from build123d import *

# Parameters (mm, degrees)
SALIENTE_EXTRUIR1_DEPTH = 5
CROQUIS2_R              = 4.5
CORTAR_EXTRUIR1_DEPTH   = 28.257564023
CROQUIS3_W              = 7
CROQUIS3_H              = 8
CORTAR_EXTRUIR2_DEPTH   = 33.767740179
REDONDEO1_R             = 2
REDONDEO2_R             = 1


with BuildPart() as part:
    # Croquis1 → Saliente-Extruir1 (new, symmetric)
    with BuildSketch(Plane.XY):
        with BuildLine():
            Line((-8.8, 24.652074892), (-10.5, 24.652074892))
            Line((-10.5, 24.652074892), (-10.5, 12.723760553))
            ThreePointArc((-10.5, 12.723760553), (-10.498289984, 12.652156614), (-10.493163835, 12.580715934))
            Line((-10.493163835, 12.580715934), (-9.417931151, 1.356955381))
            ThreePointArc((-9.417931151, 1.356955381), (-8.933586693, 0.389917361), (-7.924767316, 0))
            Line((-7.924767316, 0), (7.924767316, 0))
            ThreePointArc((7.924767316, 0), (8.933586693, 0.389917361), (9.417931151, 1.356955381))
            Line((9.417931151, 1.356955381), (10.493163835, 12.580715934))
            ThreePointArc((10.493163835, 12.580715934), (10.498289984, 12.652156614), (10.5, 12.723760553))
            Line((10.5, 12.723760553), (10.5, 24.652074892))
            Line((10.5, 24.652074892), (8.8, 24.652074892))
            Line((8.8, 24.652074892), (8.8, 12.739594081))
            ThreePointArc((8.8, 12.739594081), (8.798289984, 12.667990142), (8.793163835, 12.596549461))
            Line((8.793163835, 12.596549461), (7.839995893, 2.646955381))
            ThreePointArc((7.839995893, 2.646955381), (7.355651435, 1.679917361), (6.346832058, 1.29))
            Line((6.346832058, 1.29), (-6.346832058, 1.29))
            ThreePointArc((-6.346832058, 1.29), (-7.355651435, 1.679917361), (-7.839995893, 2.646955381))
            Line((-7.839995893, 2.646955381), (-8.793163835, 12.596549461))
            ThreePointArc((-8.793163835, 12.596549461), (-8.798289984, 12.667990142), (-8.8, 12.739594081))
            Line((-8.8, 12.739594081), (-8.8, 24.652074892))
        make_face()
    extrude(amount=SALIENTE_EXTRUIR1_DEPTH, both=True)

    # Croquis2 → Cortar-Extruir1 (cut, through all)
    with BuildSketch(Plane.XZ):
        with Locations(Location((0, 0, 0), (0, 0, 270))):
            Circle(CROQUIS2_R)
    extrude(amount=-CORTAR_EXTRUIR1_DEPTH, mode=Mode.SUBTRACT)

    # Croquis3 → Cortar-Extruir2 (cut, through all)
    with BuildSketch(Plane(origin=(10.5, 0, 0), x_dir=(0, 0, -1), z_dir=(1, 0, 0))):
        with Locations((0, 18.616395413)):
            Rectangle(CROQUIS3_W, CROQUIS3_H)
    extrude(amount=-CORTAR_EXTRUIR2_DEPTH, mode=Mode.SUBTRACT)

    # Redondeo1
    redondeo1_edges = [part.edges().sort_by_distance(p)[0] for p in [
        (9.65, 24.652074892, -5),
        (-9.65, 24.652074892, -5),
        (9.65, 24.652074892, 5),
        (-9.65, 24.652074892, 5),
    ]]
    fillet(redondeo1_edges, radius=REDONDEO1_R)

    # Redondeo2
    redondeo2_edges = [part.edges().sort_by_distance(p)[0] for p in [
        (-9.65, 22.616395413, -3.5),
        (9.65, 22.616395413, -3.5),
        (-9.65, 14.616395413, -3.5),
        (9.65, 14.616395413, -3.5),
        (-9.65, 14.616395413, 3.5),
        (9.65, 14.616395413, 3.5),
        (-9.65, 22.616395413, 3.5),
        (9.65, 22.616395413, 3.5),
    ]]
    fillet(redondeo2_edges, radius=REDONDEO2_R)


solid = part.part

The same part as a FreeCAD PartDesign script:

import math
import FreeCAD as App
import Part
import Sketcher


def edges_at(feature, points):
    """Names of the edges that pass closest to the given points."""
    edges = feature.Shape.Edges
    near = lambda p: min(range(len(edges)), key=lambda i: edges[i].distToShape(Part.Vertex(*p))[0])
    return sorted({f"Edge{near(p) + 1}" for p in points})

doc = App.newDocument("Part")
body = doc.addObject("PartDesign::Body", "Body")

# Sketch on XY plane
sketch1 = body.newObject("Sketcher::SketchObject", "Sketch")
sketch1.AttachmentSupport = (doc.getObject("XY_Plane"), [""])
sketch1.MapMode = "FlatFace"
sketch1.addGeometry(Part.LineSegment(App.Vector(-8.8, 24.652075, 0), App.Vector(-10.5, 24.652075, 0)), False)
sketch1.addGeometry(Part.LineSegment(App.Vector(-10.5, 24.652075, 0), App.Vector(-10.5, 12.723761, 0)), False)
sketch1.addGeometry(Part.ArcOfCircle(Part.Circle(App.Vector(-9, 12.723761, 0), App.Vector(0, 0, 1), 1.5), math.radians(-180), math.radians(-174.527783)), False)
sketch1.addGeometry(Part.LineSegment(App.Vector(-10.493164, 12.580716, 0), App.Vector(-9.417931, 1.356955, 0)), False)
sketch1.addGeometry(Part.ArcOfCircle(Part.Circle(App.Vector(-7.924767, 1.5, 0), App.Vector(0, 0, 1), 1.5), math.radians(-174.527782), math.radians(-90)), False)
sketch1.addGeometry(Part.LineSegment(App.Vector(-7.924767, 0, 0), App.Vector(7.924767, 0, 0)), False)
sketch1.addGeometry(Part.ArcOfCircle(Part.Circle(App.Vector(7.924767, 1.5, 0), App.Vector(0, 0, 1), 1.5), math.radians(-90), math.radians(-5.472218)), False)
sketch1.addGeometry(Part.LineSegment(App.Vector(9.417931, 1.356955, 0), App.Vector(10.493164, 12.580716, 0)), False)
sketch1.addGeometry(Part.ArcOfCircle(Part.Circle(App.Vector(9, 12.723761, 0), App.Vector(0, 0, 1), 1.5), math.radians(-5.472217), math.radians(0)), False)
sketch1.addGeometry(Part.LineSegment(App.Vector(10.5, 12.723761, 0), App.Vector(10.5, 24.652075, 0)), False)
sketch1.addGeometry(Part.LineSegment(App.Vector(10.5, 24.652075, 0), App.Vector(8.8, 24.652075, 0)), False)
sketch1.addGeometry(Part.LineSegment(App.Vector(8.8, 24.652075, 0), App.Vector(8.8, 12.739594, 0)), False)
sketch1.addGeometry(Part.ArcOfCircle(Part.Circle(App.Vector(7.3, 12.739594, 0), App.Vector(0, 0, 1), 1.5), math.radians(-5.472217), math.radians(0)), False)
sketch1.addGeometry(Part.LineSegment(App.Vector(8.793164, 12.596549, 0), App.Vector(7.839996, 2.646955, 0)), False)
sketch1.addGeometry(Part.ArcOfCircle(Part.Circle(App.Vector(6.346832, 2.79, 0), App.Vector(0, 0, 1), 1.5), math.radians(-90), math.radians(-5.472218)), False)
sketch1.addGeometry(Part.LineSegment(App.Vector(6.346832, 1.29, 0), App.Vector(-6.346832, 1.29, 0)), False)
sketch1.addGeometry(Part.ArcOfCircle(Part.Circle(App.Vector(-6.346832, 2.79, 0), App.Vector(0, 0, 1), 1.5), math.radians(-174.527782), math.radians(-90)), False)
sketch1.addGeometry(Part.LineSegment(App.Vector(-7.839996, 2.646955, 0), App.Vector(-8.793164, 12.596549, 0)), False)
sketch1.addGeometry(Part.ArcOfCircle(Part.Circle(App.Vector(-7.3, 12.739594, 0), App.Vector(0, 0, 1), 1.5), math.radians(-180), math.radians(-174.527783)), False)
sketch1.addGeometry(Part.LineSegment(App.Vector(-8.8, 12.739594, 0), App.Vector(-8.8, 24.652075, 0)), False)
sketch1.addConstraint(Sketcher.Constraint("Coincident", 0, 2, 1, 1))
sketch1.addConstraint(Sketcher.Constraint("Tangent", 1, 2, 2, 1))
sketch1.addConstraint(Sketcher.Constraint("Tangent", 2, 2, 3, 1))
sketch1.addConstraint(Sketcher.Constraint("Tangent", 3, 2, 4, 1))
sketch1.addConstraint(Sketcher.Constraint("Tangent", 4, 2, 5, 1))
sketch1.addConstraint(Sketcher.Constraint("Tangent", 5, 2, 6, 1))
sketch1.addConstraint(Sketcher.Constraint("Tangent", 6, 2, 7, 1))
sketch1.addConstraint(Sketcher.Constraint("Tangent", 7, 2, 8, 1))
sketch1.addConstraint(Sketcher.Constraint("Tangent", 8, 2, 9, 1))
sketch1.addConstraint(Sketcher.Constraint("Coincident", 9, 2, 10, 1))
sketch1.addConstraint(Sketcher.Constraint("Coincident", 10, 2, 11, 1))
sketch1.addConstraint(Sketcher.Constraint("Tangent", 11, 2, 12, 2))
sketch1.addConstraint(Sketcher.Constraint("Tangent", 12, 1, 13, 1))
sketch1.addConstraint(Sketcher.Constraint("Tangent", 13, 2, 14, 2))
sketch1.addConstraint(Sketcher.Constraint("Tangent", 14, 1, 15, 1))
sketch1.addConstraint(Sketcher.Constraint("Tangent", 15, 2, 16, 2))
sketch1.addConstraint(Sketcher.Constraint("Tangent", 16, 1, 17, 1))
sketch1.addConstraint(Sketcher.Constraint("Tangent", 17, 2, 18, 2))
sketch1.addConstraint(Sketcher.Constraint("Tangent", 18, 1, 19, 1))
sketch1.addConstraint(Sketcher.Constraint("Coincident", 19, 2, 0, 1))
sketch1.addConstraint(Sketcher.Constraint("Horizontal", 0))
sketch1.addConstraint(Sketcher.Constraint("Vertical", 1))
sketch1.addConstraint(Sketcher.Constraint("Horizontal", 5))
sketch1.addConstraint(Sketcher.Constraint("Vertical", 9))
sketch1.addConstraint(Sketcher.Constraint("Horizontal", 10))
sketch1.addConstraint(Sketcher.Constraint("Vertical", 11))
sketch1.addConstraint(Sketcher.Constraint("Horizontal", 15))
sketch1.addConstraint(Sketcher.Constraint("Vertical", 19))
sketch1.addConstraint(Sketcher.Constraint("Equal", 2, 4))
sketch1.addConstraint(Sketcher.Constraint("Equal", 4, 6))
sketch1.addConstraint(Sketcher.Constraint("Equal", 6, 8))
sketch1.addConstraint(Sketcher.Constraint("Equal", 8, 12))
sketch1.addConstraint(Sketcher.Constraint("Equal", 12, 14))
sketch1.addConstraint(Sketcher.Constraint("Equal", 14, 16))
sketch1.addConstraint(Sketcher.Constraint("Equal", 16, 18))
sketch1.addConstraint(Sketcher.Constraint("Symmetric", 4, 2, 5, 2, -1, 1))
sketch1.addConstraint(Sketcher.Constraint("Symmetric", 2, 3, 8, 3, -2))
sketch1.addConstraint(Sketcher.Constraint("Symmetric", 12, 3, 18, 3, -2))
sketch1.addConstraint(Sketcher.Constraint("Parallel", 7, 13))
sketch1.addConstraint(Sketcher.Constraint("Parallel", 3, 17))
sketch1.addConstraint(Sketcher.Constraint("Horizontal", 0, 2, 9, 2))
sketch1.addConstraint(Sketcher.Constraint("Radius", 2, 1.5))
sketch1.addConstraint(Sketcher.Constraint("DistanceX", 0, 2, 0, 1, 1.7))
sketch1.addConstraint(Sketcher.Constraint("DistanceX", 2, 3, -1, 1, 9.0))
sketch1.addConstraint(Sketcher.Constraint("DistanceY", -1, 1, 14, 3, 2.79))
sketch1.addConstraint(Sketcher.Constraint("DistanceY", 11, 2, 11, 1, 11.912481))
sketch1.addConstraint(Sketcher.Constraint("DistanceX", 4, 3, 14, 3, 14.271599))
sketch1.addConstraint(Sketcher.Constraint("DistanceX", 3, 2, 16, 3, 3.071099))
sketch1.addConstraint(Sketcher.Constraint("DistanceY", 1, 2, 1, 1, 11.928314))
pad1 = body.newObject("PartDesign::Pad", "Pad")
pad1.Profile = sketch1
pad1.Length = 10
pad1.Midplane = True

# Sketch on XZ plane
sketch2 = body.newObject("Sketcher::SketchObject", "Sketch001")
sketch2.AttachmentSupport = (doc.getObject("XZ_Plane"), [""])
sketch2.MapMode = "FlatFace"
sketch2.addGeometry(Part.Circle(App.Vector(0, 0, 0), App.Vector(0, 0, 1), 4.5), False)
sketch2.addConstraint(Sketcher.Constraint("Coincident", 0, 3, -1, 1))
sketch2.addConstraint(Sketcher.Constraint("Diameter", 0, 9.0))
pocket1 = body.newObject("PartDesign::Pocket", "Pocket")
pocket1.Profile = sketch2
pocket1.Type = "ThroughAll"

# Sketch on YZ plane
sketch3 = body.newObject("Sketcher::SketchObject", "Sketch002")
sketch3.AttachmentSupport = (doc.getObject("YZ_Plane"), [""])
sketch3.MapMode = "FlatFace"
sketch3.AttachmentOffset = App.Placement(App.Vector(0, 0, 10.5), App.Rotation())
sketch3.addGeometry(Part.LineSegment(App.Vector(22.616395, 3.5, 0), App.Vector(14.616395, 3.5, 0)), False)
sketch3.addGeometry(Part.LineSegment(App.Vector(14.616395, 3.5, 0), App.Vector(14.616395, -3.5, 0)), False)
sketch3.addGeometry(Part.LineSegment(App.Vector(14.616395, -3.5, 0), App.Vector(22.616395, -3.5, 0)), False)
sketch3.addGeometry(Part.LineSegment(App.Vector(22.616395, -3.5, 0), App.Vector(22.616395, 3.5, 0)), False)
sketch3.addConstraint(Sketcher.Constraint("Coincident", 0, 2, 1, 1))
sketch3.addConstraint(Sketcher.Constraint("Coincident", 1, 2, 2, 1))
sketch3.addConstraint(Sketcher.Constraint("Coincident", 2, 2, 3, 1))
sketch3.addConstraint(Sketcher.Constraint("Coincident", 3, 2, 0, 1))
sketch3.addConstraint(Sketcher.Constraint("Horizontal", 0))
sketch3.addConstraint(Sketcher.Constraint("Vertical", 1))
sketch3.addConstraint(Sketcher.Constraint("Horizontal", 2))
sketch3.addConstraint(Sketcher.Constraint("Vertical", 3))
sketch3.addConstraint(Sketcher.Constraint("DistanceX", 0, 2, 0, 1, 8.0))
sketch3.addConstraint(Sketcher.Constraint("DistanceY", 1, 2, 1, 1, 7.0))
sketch3.addConstraint(Sketcher.Constraint("DistanceY", -1, 1, 0, 2, 3.5))
sketch3.addConstraint(Sketcher.Constraint("DistanceX", -1, 1, 0, 2, 14.616395))
pocket2 = body.newObject("PartDesign::Pocket", "Pocket001")
pocket2.Profile = sketch3
pocket2.Type = "ThroughAll"
doc.recompute()

fillet = body.newObject("PartDesign::Fillet", "Fillet")
fillet.Base = (pocket2, edges_at(pocket2, [
    (9.65, 24.652, -5),
    (-9.65, 24.652, -5),
    (9.65, 24.652, 5),
    (-9.65, 24.652, 5),
]))
fillet.Radius = 2
doc.recompute()

fillet2 = body.newObject("PartDesign::Fillet", "Fillet001")
fillet2.Base = (fillet, edges_at(fillet, [
    (-9.65, 22.616, -3.5),
    (9.65, 22.616, -3.5),
    (-9.65, 14.616, -3.5),
    (9.65, 14.616, -3.5),
    (-9.65, 14.616, 3.5),
    (9.65, 14.616, 3.5),
    (-9.65, 22.616, 3.5),
    (9.65, 22.616, 3.5),
]))
fillet2.Radius = 1

doc.recompute()
